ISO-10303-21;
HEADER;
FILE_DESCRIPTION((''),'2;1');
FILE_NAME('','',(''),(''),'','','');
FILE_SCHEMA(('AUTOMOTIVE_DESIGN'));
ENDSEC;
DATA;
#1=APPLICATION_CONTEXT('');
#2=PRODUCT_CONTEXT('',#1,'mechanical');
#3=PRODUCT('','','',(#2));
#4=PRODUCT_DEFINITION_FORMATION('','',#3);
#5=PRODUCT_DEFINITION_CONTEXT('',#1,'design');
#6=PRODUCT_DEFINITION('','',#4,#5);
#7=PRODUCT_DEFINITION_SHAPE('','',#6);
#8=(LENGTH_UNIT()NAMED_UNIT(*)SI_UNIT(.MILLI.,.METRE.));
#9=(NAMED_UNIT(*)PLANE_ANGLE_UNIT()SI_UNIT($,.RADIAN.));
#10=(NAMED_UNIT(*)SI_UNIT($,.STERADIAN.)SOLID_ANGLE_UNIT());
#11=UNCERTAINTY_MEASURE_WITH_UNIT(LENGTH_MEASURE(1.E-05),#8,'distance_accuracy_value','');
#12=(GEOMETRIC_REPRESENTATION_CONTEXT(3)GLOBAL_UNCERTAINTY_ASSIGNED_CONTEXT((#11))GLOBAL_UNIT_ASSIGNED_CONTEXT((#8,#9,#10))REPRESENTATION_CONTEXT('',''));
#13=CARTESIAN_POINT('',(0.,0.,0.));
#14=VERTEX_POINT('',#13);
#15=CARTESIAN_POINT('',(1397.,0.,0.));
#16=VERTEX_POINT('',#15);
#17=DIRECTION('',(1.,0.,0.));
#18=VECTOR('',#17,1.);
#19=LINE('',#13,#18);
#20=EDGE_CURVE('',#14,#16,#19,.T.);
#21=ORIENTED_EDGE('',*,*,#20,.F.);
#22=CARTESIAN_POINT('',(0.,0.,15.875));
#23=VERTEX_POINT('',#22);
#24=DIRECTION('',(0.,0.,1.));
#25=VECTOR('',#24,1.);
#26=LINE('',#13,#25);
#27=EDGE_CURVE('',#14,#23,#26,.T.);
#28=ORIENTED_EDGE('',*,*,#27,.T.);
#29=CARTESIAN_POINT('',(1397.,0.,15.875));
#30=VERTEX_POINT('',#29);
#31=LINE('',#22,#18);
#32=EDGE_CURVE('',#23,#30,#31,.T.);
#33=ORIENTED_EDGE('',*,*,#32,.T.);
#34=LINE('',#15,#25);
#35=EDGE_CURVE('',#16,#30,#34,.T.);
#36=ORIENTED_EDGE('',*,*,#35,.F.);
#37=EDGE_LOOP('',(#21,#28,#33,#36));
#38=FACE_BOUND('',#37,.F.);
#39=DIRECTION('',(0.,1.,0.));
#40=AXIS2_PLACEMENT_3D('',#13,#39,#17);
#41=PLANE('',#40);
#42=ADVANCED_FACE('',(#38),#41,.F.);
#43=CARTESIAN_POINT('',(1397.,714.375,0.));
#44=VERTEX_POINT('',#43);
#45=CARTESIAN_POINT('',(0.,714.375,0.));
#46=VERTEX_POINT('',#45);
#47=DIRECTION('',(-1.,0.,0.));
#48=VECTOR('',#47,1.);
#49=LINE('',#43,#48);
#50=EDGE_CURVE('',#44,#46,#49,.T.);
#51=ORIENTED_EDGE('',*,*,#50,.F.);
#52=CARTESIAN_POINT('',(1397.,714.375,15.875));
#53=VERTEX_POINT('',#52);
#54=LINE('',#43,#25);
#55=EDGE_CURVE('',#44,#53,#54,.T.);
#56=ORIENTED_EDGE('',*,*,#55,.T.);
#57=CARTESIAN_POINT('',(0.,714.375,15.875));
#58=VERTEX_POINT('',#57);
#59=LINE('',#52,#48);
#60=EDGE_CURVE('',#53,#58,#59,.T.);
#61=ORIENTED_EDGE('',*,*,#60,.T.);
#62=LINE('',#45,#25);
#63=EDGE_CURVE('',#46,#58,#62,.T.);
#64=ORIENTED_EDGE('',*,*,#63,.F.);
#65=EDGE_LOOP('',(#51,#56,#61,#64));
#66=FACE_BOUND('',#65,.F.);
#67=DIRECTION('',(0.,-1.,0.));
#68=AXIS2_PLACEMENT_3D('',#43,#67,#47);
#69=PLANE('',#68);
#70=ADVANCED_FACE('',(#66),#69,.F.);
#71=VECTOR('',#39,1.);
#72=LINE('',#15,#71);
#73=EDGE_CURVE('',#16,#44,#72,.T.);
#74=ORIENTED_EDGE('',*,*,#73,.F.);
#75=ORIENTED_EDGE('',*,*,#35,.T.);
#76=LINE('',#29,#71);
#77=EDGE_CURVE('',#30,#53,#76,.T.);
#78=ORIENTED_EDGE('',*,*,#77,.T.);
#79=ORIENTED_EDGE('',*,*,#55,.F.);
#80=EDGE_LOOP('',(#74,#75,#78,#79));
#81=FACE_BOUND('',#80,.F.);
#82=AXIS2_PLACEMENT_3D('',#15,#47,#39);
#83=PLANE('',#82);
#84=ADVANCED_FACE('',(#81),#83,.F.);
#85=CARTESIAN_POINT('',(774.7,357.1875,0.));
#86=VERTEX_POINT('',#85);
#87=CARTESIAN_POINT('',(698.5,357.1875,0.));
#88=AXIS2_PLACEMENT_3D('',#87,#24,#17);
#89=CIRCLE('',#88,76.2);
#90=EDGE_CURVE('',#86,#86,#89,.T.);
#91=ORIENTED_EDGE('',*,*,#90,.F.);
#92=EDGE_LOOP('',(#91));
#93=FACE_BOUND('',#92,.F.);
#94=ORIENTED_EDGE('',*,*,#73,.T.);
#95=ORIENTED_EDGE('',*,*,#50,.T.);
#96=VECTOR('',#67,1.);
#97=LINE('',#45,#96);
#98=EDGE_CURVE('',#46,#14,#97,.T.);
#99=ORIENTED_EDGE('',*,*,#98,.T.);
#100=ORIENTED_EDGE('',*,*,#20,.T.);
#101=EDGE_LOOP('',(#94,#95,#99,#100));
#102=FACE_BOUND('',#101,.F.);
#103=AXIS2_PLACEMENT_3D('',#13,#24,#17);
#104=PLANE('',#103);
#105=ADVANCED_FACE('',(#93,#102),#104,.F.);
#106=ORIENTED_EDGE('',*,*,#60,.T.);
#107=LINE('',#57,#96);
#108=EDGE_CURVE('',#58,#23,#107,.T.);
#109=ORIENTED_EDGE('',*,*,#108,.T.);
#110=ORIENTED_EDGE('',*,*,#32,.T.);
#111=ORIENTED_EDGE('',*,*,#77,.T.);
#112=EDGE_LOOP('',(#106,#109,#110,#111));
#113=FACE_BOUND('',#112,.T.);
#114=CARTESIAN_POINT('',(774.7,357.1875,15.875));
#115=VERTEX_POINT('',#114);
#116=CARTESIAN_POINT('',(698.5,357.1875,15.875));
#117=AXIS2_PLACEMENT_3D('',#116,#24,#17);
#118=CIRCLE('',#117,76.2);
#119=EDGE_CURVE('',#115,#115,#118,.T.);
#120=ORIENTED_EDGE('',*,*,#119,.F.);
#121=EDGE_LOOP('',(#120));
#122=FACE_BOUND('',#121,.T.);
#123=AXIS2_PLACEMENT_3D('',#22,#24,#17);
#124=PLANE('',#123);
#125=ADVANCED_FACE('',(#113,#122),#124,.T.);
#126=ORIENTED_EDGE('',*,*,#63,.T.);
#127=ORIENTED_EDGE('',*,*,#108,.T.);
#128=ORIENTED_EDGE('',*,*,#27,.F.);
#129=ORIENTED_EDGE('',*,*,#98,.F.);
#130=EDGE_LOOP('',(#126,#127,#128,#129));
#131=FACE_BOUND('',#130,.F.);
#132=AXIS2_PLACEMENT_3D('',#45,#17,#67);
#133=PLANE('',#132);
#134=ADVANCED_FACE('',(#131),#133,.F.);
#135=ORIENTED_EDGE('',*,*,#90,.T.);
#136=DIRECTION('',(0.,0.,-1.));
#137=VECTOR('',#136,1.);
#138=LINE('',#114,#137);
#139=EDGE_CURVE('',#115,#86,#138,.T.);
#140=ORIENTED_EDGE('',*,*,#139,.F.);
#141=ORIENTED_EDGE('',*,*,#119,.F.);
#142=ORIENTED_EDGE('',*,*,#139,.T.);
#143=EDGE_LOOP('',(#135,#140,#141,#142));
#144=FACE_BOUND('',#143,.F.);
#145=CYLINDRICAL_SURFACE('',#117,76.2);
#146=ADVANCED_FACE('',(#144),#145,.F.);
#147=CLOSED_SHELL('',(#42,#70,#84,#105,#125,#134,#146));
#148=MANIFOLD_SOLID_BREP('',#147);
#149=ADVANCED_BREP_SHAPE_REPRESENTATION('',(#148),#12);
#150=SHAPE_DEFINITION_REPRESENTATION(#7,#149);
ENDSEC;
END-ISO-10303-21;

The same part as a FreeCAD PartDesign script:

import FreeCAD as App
import Part
import Sketcher
from FreeCAD import Vector
Q = App.Units.Quantity

doc = App.newDocument("Part")
body = doc.addObject("PartDesign::Body", "Body")

sketch1 = doc.addObject("Sketcher::SketchObject", "Sketch")
body.addObject(sketch1)
sketch1.AttachmentSupport = (doc.XY_Plane, [""])
sketch1.MapMode = "FlatFace"
sketch1.addGeometry(Part.LineSegment(Vector(0, 714.375, 0), Vector(0, 0, 0)), False)
sketch1.addGeometry(Part.LineSegment(Vector(0, 0, 0), Vector(1397, 0, 0)), False)
sketch1.addGeometry(Part.LineSegment(Vector(1397, 0, 0), Vector(1397, 714.375, 0)), False)
sketch1.addGeometry(Part.LineSegment(Vector(1397, 714.375, 0), Vector(0, 714.375, 0)), False)
sketch1.addConstraint(Sketcher.Constraint("Coincident", 0, 2, 1, 1))
sketch1.addConstraint(Sketcher.Constraint("Coincident", 1, 2, 2, 1))
sketch1.addConstraint(Sketcher.Constraint("Coincident", 2, 2, 3, 1))
sketch1.addConstraint(Sketcher.Constraint("Coincident", 3, 2, 0, 1))
sketch1.addConstraint(Sketcher.Constraint("Vertical", 0))
sketch1.addConstraint(Sketcher.Constraint("Horizontal", 1))
sketch1.addConstraint(Sketcher.Constraint("Vertical", 2))
sketch1.addConstraint(Sketcher.Constraint("Horizontal", 3))
sketch1.addConstraint(Sketcher.Constraint("Coincident", 0, 2, -1, 1))
sketch1.addConstraint(Sketcher.Constraint("DistanceX", 1, 1, 1, 2, Q("55 in")))
sketch1.addConstraint(Sketcher.Constraint("DistanceY", 0, 2, 0, 1, Q("28.125 in")))
pad1 = doc.addObject("PartDesign::Pad", "Pad")
body.addObject(pad1)
pad1.Profile = sketch1
pad1.Length = Q("0.625 in")

sketch2 = doc.addObject("Sketcher::SketchObject", "Sketch001")
body.addObject(sketch2)
sketch2.AttachmentSupport = (doc.XY_Plane, [""])
sketch2.MapMode = "FlatFace"
sketch2.AttachmentOffset = App.Placement(Vector(0, 0, 0.625 * 25.4), App.Rotation())
sketch2.addGeometry(Part.Circle(Vector(698.5, 357.1875, 0), Vector(0, 0, 1), 76.2), False)
sketch2.addConstraint(Sketcher.Constraint("Diameter", 0, Q("6 in")))
sketch2.addConstraint(Sketcher.Constraint("DistanceX", -1, 1, 0, 3, Q("27.5 in")))
sketch2.addConstraint(Sketcher.Constraint("DistanceY", -1, 1, 0, 3, Q("14.0625 in")))
pocket1 = doc.addObject("PartDesign::Pocket", "Pocket")
body.addObject(pocket1)
pocket1.Profile = sketch2
pocket1.Length = Q("0.625 in")

doc.recompute()
